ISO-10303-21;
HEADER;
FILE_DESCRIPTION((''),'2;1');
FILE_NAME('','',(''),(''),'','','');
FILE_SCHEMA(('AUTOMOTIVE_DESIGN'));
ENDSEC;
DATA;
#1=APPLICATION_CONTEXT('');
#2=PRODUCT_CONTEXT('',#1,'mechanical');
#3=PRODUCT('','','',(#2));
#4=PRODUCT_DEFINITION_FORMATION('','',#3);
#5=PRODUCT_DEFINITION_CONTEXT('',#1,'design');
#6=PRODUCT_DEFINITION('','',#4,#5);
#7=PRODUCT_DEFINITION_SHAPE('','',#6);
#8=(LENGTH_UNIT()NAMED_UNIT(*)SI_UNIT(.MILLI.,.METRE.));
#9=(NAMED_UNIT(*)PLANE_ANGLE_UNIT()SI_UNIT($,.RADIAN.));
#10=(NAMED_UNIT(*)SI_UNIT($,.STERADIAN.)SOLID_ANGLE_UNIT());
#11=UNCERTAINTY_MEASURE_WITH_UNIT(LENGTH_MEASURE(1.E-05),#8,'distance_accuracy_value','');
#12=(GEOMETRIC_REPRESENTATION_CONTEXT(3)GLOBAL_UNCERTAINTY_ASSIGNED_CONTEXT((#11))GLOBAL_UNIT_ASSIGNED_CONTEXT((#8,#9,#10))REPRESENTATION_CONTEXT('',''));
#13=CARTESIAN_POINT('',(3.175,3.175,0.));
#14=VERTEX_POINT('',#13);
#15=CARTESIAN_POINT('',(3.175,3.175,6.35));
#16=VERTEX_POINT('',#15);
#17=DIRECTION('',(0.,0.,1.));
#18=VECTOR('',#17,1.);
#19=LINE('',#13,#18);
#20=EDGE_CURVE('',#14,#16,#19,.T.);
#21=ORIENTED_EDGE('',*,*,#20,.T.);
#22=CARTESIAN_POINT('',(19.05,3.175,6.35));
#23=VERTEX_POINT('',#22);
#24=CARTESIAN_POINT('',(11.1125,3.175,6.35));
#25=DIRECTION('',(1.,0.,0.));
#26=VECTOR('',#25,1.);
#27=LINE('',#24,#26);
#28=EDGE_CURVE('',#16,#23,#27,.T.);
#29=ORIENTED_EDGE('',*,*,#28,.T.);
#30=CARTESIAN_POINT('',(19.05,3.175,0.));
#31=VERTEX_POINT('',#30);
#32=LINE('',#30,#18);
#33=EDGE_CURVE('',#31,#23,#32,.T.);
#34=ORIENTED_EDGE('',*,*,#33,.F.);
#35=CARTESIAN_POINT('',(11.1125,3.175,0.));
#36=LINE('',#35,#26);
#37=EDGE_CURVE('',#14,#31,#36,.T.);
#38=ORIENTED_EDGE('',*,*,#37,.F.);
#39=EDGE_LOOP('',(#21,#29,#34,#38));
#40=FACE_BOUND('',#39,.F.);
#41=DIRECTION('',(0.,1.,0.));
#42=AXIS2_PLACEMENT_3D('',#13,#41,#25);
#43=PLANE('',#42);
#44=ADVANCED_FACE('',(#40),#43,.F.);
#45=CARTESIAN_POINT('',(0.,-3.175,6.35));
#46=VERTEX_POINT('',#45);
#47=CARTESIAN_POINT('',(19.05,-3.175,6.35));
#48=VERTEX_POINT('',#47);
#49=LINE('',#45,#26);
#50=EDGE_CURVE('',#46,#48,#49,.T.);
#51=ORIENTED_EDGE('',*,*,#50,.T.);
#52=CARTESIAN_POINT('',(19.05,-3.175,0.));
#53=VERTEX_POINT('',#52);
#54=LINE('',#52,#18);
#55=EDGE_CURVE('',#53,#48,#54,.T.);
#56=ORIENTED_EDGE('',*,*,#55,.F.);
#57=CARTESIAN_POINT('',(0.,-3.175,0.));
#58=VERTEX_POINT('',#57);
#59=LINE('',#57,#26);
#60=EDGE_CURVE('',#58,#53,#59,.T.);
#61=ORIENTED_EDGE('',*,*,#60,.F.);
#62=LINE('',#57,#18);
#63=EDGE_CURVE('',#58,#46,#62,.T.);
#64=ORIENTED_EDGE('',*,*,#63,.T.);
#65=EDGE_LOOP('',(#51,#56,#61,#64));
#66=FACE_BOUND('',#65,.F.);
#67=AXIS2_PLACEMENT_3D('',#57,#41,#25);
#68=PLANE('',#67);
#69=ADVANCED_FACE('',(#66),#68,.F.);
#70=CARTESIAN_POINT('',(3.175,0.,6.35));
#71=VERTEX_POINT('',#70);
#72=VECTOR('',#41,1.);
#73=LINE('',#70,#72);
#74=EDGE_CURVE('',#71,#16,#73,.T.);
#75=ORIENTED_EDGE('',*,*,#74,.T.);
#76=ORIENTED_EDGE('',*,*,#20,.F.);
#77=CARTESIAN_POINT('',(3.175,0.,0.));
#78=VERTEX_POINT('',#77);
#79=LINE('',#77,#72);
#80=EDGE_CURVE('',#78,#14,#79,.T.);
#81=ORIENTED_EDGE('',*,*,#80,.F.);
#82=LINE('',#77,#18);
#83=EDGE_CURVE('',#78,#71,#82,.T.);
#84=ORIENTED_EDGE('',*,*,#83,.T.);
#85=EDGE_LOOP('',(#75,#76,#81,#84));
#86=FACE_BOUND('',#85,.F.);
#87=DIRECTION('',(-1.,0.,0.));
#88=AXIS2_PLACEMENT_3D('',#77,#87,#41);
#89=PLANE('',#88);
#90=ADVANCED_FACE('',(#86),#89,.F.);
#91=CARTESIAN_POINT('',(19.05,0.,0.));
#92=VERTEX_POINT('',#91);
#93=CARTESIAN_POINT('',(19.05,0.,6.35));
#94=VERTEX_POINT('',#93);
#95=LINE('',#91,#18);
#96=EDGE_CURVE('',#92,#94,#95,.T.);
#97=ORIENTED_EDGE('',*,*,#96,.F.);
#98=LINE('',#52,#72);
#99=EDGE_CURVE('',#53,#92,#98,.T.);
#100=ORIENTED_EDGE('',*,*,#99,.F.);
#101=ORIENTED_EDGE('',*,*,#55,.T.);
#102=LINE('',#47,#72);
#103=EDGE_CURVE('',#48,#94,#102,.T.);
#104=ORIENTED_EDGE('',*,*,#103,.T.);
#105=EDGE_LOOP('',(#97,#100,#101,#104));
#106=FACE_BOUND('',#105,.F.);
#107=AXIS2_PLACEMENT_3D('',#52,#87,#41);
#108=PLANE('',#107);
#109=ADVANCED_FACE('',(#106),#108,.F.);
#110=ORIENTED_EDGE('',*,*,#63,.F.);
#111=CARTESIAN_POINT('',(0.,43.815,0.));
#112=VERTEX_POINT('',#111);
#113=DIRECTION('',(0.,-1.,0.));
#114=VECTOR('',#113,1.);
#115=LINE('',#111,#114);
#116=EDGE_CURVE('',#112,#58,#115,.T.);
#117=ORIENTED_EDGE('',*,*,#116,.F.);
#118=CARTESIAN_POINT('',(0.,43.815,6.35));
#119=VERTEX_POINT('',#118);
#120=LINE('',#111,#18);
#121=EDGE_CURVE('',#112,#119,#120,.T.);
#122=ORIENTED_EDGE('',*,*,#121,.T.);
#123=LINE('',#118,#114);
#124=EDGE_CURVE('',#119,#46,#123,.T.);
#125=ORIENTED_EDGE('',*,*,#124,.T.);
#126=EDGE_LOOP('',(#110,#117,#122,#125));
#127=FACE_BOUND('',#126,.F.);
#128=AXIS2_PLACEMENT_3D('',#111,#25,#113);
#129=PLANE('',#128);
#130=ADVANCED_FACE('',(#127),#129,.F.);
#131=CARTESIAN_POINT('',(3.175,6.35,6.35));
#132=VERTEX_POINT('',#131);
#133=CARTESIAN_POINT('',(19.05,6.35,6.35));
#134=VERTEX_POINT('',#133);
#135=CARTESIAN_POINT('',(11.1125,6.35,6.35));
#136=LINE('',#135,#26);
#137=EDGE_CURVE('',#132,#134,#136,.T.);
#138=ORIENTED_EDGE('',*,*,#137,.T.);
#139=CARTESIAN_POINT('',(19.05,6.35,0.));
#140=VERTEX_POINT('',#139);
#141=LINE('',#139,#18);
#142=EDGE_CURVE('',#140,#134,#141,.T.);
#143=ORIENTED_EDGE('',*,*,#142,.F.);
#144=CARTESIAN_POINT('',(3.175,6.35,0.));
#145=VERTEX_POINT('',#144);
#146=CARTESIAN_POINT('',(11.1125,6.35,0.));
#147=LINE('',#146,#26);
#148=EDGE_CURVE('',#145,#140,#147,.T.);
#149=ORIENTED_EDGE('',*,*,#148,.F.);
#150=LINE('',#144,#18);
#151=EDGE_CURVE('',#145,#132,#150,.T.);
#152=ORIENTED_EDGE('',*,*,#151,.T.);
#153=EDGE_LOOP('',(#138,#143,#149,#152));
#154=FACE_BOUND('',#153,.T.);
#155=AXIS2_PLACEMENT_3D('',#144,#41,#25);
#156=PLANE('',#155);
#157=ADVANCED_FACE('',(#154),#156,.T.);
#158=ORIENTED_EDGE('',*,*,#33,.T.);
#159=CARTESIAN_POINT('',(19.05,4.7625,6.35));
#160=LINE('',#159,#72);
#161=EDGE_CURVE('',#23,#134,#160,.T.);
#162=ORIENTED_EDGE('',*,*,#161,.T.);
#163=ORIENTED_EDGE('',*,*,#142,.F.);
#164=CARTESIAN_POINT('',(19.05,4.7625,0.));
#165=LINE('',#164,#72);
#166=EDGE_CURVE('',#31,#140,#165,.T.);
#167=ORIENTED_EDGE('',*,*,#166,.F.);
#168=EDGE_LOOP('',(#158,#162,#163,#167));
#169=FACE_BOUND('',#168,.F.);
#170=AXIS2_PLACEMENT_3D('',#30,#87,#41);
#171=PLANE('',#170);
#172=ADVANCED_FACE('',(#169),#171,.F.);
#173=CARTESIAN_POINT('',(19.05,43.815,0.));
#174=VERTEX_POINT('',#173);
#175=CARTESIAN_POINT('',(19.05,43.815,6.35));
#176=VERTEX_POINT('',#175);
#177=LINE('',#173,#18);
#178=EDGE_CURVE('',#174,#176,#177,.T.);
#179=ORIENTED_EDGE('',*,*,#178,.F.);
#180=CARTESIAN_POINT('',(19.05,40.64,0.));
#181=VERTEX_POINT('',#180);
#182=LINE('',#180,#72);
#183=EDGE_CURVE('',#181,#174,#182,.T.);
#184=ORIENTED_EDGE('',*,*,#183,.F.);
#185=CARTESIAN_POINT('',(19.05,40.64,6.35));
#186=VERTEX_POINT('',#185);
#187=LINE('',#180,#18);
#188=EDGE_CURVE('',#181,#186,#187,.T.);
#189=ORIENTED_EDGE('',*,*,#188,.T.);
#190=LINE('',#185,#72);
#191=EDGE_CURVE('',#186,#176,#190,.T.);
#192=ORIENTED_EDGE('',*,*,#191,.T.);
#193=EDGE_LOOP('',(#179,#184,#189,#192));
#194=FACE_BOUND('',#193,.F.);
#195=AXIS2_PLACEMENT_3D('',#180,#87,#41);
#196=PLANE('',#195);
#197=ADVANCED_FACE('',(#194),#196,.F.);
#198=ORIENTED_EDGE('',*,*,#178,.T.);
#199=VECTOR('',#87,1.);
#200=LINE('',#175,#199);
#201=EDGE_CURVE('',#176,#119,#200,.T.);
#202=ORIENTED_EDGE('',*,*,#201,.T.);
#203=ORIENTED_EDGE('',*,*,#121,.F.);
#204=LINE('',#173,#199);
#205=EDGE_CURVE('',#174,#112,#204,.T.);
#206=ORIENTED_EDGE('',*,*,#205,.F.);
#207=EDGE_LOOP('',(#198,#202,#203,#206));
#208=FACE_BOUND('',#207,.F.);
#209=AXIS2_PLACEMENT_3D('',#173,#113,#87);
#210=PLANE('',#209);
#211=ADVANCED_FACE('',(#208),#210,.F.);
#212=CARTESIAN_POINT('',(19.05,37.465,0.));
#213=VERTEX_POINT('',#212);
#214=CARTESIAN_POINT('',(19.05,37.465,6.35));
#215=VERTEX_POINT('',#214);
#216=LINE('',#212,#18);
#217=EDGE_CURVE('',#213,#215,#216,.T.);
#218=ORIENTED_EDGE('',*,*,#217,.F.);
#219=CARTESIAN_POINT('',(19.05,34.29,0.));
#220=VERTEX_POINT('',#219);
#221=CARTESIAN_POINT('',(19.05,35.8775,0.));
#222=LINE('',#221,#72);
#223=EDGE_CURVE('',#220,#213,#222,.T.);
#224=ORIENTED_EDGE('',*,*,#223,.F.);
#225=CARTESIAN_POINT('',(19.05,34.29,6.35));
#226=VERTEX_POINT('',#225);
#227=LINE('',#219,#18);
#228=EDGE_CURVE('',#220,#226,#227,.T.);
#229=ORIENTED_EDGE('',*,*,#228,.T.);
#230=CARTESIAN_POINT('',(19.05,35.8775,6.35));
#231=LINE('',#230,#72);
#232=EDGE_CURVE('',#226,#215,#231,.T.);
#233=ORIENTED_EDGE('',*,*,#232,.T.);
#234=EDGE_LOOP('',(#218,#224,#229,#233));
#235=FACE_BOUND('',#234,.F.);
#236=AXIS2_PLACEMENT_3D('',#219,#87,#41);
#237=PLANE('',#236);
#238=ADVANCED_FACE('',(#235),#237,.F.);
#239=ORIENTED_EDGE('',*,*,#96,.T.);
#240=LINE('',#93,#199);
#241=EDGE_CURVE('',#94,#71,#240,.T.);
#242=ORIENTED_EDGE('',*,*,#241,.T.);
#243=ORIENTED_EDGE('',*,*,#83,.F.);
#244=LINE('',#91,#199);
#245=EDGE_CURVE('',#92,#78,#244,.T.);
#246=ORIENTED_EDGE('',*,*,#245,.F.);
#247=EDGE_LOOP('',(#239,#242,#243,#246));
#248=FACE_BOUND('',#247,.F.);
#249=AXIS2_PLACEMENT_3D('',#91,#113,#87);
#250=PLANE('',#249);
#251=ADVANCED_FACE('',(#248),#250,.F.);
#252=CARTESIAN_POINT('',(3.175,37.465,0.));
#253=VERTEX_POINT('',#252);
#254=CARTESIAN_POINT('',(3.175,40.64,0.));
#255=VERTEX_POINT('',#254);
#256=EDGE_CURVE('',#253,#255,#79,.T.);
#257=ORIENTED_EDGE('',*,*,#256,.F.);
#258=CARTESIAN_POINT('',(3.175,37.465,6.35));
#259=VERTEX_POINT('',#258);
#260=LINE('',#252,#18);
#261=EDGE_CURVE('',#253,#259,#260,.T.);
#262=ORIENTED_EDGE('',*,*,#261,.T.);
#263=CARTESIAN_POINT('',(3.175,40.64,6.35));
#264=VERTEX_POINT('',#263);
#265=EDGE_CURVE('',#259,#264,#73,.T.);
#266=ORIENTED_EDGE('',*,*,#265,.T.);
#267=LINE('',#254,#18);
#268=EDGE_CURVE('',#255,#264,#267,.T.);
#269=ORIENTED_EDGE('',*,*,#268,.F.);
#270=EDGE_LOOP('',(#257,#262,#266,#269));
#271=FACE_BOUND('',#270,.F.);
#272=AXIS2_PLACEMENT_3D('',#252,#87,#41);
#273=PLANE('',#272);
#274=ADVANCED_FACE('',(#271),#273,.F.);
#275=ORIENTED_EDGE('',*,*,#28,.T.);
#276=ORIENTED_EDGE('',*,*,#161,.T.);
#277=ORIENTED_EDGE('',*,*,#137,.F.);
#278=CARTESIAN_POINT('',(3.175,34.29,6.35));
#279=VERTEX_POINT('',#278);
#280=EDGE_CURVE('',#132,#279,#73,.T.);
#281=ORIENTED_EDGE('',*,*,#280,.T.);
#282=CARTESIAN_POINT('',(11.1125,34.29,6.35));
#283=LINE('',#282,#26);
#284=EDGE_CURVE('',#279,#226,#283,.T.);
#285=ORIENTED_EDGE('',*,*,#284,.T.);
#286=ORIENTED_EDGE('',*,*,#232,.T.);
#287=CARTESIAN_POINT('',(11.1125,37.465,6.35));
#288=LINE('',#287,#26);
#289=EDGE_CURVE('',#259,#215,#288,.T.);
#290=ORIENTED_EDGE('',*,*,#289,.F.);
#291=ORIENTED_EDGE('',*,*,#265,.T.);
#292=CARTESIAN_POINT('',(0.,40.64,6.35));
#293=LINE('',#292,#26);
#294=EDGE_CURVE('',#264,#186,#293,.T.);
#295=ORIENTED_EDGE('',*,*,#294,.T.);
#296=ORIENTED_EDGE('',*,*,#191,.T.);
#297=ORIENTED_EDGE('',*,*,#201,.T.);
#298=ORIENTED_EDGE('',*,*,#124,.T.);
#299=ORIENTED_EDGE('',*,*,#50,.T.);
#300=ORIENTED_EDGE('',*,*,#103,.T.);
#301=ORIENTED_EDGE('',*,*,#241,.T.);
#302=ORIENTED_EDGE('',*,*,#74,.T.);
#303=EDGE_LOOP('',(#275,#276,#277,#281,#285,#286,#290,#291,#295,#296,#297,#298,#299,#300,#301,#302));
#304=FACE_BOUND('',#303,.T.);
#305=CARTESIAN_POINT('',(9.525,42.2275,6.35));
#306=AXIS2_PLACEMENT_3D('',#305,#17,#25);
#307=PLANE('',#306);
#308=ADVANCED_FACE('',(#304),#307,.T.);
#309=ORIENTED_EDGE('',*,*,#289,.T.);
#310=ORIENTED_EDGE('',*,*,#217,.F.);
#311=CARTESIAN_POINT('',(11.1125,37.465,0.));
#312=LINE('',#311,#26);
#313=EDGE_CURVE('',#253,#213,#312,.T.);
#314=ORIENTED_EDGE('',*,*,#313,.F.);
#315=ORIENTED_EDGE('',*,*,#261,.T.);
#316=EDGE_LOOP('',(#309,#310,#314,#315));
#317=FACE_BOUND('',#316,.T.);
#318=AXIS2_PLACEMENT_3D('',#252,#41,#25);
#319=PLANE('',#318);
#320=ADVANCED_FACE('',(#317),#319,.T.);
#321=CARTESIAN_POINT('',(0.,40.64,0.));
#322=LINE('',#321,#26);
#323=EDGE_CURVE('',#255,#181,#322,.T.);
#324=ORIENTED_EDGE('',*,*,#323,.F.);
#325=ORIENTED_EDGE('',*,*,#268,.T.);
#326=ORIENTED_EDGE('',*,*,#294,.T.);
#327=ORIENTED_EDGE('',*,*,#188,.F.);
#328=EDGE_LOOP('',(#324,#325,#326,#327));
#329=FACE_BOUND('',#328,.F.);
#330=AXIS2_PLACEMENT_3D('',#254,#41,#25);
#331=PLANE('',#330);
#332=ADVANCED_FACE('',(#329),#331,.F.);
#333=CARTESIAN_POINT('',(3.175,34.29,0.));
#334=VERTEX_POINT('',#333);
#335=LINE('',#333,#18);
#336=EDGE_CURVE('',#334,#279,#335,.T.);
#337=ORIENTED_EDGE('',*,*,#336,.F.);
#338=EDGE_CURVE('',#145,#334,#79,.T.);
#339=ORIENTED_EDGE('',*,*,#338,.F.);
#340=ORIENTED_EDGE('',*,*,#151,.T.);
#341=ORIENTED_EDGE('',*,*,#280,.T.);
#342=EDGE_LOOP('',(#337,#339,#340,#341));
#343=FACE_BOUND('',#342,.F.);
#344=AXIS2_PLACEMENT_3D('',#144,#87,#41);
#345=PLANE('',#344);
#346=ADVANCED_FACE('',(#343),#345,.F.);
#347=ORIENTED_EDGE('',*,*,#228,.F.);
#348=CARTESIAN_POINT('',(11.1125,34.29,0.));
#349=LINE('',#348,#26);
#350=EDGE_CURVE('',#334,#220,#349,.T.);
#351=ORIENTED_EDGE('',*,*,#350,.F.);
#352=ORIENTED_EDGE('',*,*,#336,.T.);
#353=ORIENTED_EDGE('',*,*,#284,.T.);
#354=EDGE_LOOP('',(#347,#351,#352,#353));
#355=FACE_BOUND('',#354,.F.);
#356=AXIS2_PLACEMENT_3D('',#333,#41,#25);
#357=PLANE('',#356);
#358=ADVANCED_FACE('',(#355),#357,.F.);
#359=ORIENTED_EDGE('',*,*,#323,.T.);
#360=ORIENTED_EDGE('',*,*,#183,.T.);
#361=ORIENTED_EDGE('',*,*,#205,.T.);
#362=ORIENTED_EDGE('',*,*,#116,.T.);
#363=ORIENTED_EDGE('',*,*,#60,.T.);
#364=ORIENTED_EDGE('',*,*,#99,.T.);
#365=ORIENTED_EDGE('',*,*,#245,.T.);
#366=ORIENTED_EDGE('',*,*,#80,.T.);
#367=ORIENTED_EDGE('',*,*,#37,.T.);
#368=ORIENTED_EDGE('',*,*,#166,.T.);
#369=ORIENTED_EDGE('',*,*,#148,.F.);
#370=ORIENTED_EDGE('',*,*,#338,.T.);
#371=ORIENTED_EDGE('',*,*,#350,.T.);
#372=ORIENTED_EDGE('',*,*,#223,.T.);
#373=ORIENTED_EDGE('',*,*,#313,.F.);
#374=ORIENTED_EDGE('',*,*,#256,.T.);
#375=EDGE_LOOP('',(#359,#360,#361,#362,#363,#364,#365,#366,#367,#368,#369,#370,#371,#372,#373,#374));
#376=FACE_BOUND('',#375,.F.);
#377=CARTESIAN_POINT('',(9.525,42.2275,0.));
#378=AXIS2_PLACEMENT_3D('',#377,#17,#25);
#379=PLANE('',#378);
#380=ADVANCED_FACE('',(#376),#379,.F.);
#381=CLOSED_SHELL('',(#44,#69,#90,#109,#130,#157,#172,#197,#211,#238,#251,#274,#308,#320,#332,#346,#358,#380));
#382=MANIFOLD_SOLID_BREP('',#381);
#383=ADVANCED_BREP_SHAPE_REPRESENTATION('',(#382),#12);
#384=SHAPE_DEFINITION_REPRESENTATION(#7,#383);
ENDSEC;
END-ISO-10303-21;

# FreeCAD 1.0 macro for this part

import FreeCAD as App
import Part
import Sketcher

V = App.Vector
Q = App.Units.Quantity


def add_polygon(sketch, points):
    """Adds a closed chain of lines whose ends are joined by coincident constraints."""
    first, n = sketch.GeometryCount, len(points)
    for a, b in zip(points, points[1:] + points[:1]):
        sketch.addGeometry(Part.LineSegment(App.Vector(*a, 0), App.Vector(*b, 0)), False)
    for i in range(n):
        sketch.addConstraint(Sketcher.Constraint("Coincident", first + i, 2, first + (i + 1) % n, 1))

doc = App.newDocument("Part")
body = doc.addObject("PartDesign::Body", "Body")

sketch1 = doc.addObject("Sketcher::SketchObject", "Sketch")
body.addObject(sketch1)
sketch1.AttachmentSupport = (doc.XY_Plane, [""])
sketch1.MapMode = "FlatFace"
add_polygon(sketch1, [(0, 43.8), (0, -3.2), (19.1, -3.2), (19.1, 0), (3.2, 0), (3.2, 3.2), (19.1, 3.2), (19.1, 6.3), (3.2, 6.3), (3.2, 34.3), (19.1, 34.3), (19.1, 37.5), (3.2, 37.5), (3.2, 40.6), (19.1, 40.6), (19.1, 43.8)])
sketch1.addConstraint(Sketcher.Constraint("Vertical", 0))
sketch1.addConstraint(Sketcher.Constraint("Horizontal", 1))
sketch1.addConstraint(Sketcher.Constraint("Vertical", 2))
sketch1.addConstraint(Sketcher.Constraint("Horizontal", 3))
sketch1.addConstraint(Sketcher.Constraint("Vertical", 4))
sketch1.addConstraint(Sketcher.Constraint("Horizontal", 5))
sketch1.addConstraint(Sketcher.Constraint("Vertical", 6))
sketch1.addConstraint(Sketcher.Constraint("Horizontal", 7))
sketch1.addConstraint(Sketcher.Constraint("Vertical", 8))
sketch1.addConstraint(Sketcher.Constraint("Horizontal", 9))
sketch1.addConstraint(Sketcher.Constraint("Vertical", 10))
sketch1.addConstraint(Sketcher.Constraint("Horizontal", 11))
sketch1.addConstraint(Sketcher.Constraint("Vertical", 12))
sketch1.addConstraint(Sketcher.Constraint("Horizontal", 13))
sketch1.addConstraint(Sketcher.Constraint("Vertical", 14))
sketch1.addConstraint(Sketcher.Constraint("Horizontal", 15))
sketch1.addConstraint(Sketcher.Constraint("Symmetric", 1, 2, 5, 2, -1))
sketch1.addConstraint(Sketcher.Constraint("PointOnObject", 0, 2, -2))
sketch1.addConstraint(Sketcher.Constraint("PointOnObject", 2, 2, -1))
sketch1.addConstraint(Sketcher.Constraint("Vertical", 4, 2, 7, 2))
sketch1.addConstraint(Sketcher.Constraint("Vertical", 6, 2, 9, 2))
sketch1.addConstraint(Sketcher.Constraint("Vertical", 8, 2, 11, 2))
sketch1.addConstraint(Sketcher.Constraint("Vertical", 10, 2, 13, 2))
sketch1.addConstraint(Sketcher.Constraint("Equal", 4, 6))
sketch1.addConstraint(Sketcher.Constraint("Equal", 6, 10))
sketch1.addConstraint(Sketcher.Constraint("Equal", 10, 12))
sketch1.addConstraint(Sketcher.Constraint("Equal", 12, 14))
sketch1.addConstraint(Sketcher.Constraint("DistanceY", 8, 1, 8, 2, Q("1.1 in")))
sketch1.addConstraint(Sketcher.Constraint("DistanceX", 1, 1, 1, 2, Q("0.75 in")))
sketch1.addConstraint(Sketcher.Constraint("DistanceY", 0, 2, 0, 1, Q("1.85 in")))
sketch1.addConstraint(Sketcher.Constraint("DistanceX", 3, 2, 3, 1, Q("0.625 in")))
pad1 = doc.addObject("PartDesign::Pad", "Pad")
body.addObject(pad1)
pad1.Profile = sketch1
pad1.Length = Q("0.25 in")

doc.recompute()
